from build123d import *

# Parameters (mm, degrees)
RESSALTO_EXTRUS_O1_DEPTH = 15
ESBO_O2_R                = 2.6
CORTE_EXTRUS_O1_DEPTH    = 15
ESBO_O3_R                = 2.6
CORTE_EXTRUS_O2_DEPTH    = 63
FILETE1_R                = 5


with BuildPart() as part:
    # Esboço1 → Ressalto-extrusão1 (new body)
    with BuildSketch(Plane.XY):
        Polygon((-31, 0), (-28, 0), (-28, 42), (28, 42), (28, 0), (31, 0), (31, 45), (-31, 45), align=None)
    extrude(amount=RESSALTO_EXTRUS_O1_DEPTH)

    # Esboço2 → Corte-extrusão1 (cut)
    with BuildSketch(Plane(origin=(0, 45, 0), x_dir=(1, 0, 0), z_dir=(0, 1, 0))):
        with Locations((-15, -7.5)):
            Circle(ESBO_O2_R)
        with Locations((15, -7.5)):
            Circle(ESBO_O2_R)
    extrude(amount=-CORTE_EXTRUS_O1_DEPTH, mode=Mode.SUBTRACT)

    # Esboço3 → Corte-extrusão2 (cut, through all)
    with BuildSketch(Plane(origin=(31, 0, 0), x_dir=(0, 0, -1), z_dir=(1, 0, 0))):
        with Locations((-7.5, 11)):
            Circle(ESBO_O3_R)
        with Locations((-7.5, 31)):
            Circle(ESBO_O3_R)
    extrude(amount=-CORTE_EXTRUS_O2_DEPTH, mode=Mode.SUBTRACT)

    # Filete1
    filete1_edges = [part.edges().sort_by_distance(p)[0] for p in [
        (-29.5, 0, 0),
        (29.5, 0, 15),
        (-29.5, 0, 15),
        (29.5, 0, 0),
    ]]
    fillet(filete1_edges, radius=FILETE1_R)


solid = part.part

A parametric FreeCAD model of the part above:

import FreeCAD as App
import Part
import Sketcher


def edges_at(feature, points):
    """Names of the edges that pass closest to the given points."""
    edges = feature.Shape.Edges
    near = lambda p: min(range(len(edges)), key=lambda i: edges[i].distToShape(Part.Vertex(*p))[0])
    return sorted({f"Edge{near(p) + 1}" for p in points})


def add_polygon(sketch, points):
    """Adds a closed chain of lines whose ends are joined by coincident constraints."""
    first, n = sketch.GeometryCount, len(points)
    for a, b in zip(points, points[1:] + points[:1]):
        sketch.addGeometry(Part.LineSegment(App.Vector(*a, 0), App.Vector(*b, 0)), False)
    for i in range(n):
        sketch.addConstraint(Sketcher.Constraint("Coincident", first + i, 2, first + (i + 1) % n, 1))

doc = App.newDocument("Part")
params = doc.addObject("Spreadsheet::Sheet", "Params")
for row, (alias, value) in enumerate([
    ("sketch1_width", "3 mm"),
    ("sketch1_width2", "56 mm"),
    ("sketch1_height", "42 mm"),
    ("sketch1_height2", "45 mm"),
    ("pad1_length", "15 mm"),
    ("sketch2_diameter", "5.2 mm"),
    ("pocket1_length", "15 mm"),
    ("sketch3_diameter", "5.2 mm"),
    ("fillet_radius", "5 mm"),
], start=1):
    params.set(f"A{row}", alias)
    params.set(f"B{row}", "=" + value)
    params.setAlias(f"B{row}", alias)

body = doc.addObject("PartDesign::Body", "Body")

# Sketch on XY plane
sketch1 = doc.addObject("Sketcher::SketchObject", "Sketch")
body.addObject(sketch1)
sketch1.AttachmentSupport = (doc.XY_Plane, [""])
sketch1.MapMode = "FlatFace"
add_polygon(sketch1, [(-31, 0), (-28, 0), (-28, 42), (28, 42), (28, 0), (31, 0), (31, 45), (-31, 45)])  # lines 0-7
sketch1.addConstraint([
    Sketcher.Constraint("Horizontal", 0),
    Sketcher.Constraint("Vertical", 1),
    Sketcher.Constraint("Horizontal", 2),
    Sketcher.Constraint("Vertical", 3),
    Sketcher.Constraint("Horizontal", 4),
    Sketcher.Constraint("Vertical", 5),
    Sketcher.Constraint("Horizontal", 6),
    Sketcher.Constraint("Vertical", 7),
    Sketcher.Constraint("Symmetric", 0, 2, 3, 2, -1, 1),
    Sketcher.Constraint("Symmetric", 4, 2, 7, 2, -2),
    Sketcher.Constraint("DistanceX", 0, 1, 0, 2, 3.0),
    Sketcher.Constraint("DistanceX", 2, 1, 2, 2, 56.0),
    Sketcher.Constraint("DistanceY", 1, 1, 1, 2, 42.0),
    Sketcher.Constraint("DistanceY", 5, 1, 5, 2, 45.0),
])
sketch1.setExpression("Constraints[18]", "Params.sketch1_width")
sketch1.setExpression("Constraints[19]", "Params.sketch1_width2")
sketch1.setExpression("Constraints[20]", "Params.sketch1_height")
sketch1.setExpression("Constraints[21]", "Params.sketch1_height2")
pad1 = doc.addObject("PartDesign::Pad", "Pad")
body.addObject(pad1)
pad1.Profile = sketch1
pad1.setExpression("Length", "Params.pad1_length")

# Sketch on XZ plane
sketch2 = doc.addObject("Sketcher::SketchObject", "Sketch001")
body.addObject(sketch2)
sketch2.AttachmentSupport = (doc.XZ_Plane, [""])
sketch2.MapMode = "FlatFace"
sketch2.AttachmentOffset = App.Placement(App.Vector(0, 0, -45), App.Rotation())
sketch2.addGeometry([
    Part.Circle(App.Vector(-15, 7.5, 0), App.Vector(0, 0, 1), 2.6),
    Part.Circle(App.Vector(15, 7.5, 0), App.Vector(0, 0, 1), 2.6),
], False)
sketch2.addConstraint([
    Sketcher.Constraint("Equal", 0, 1),
    Sketcher.Constraint("Symmetric", 0, 3, 1, 3, -2),
    Sketcher.Constraint("Diameter", 0, 5.2),
    Sketcher.Constraint("DistanceX", 0, 3, -1, 1, 15.0),
    Sketcher.Constraint("DistanceY", -1, 1, 0, 3, 7.5),
])
sketch2.setExpression("Constraints[2]", "Params.sketch2_diameter")
pocket1 = doc.addObject("PartDesign::Pocket", "Pocket")
body.addObject(pocket1)
pocket1.Profile = sketch2
pocket1.setExpression("Length", "Params.pocket1_length")
pocket1.Reversed = True

# Sketch on YZ plane
sketch3 = doc.addObject("Sketcher::SketchObject", "Sketch002")
body.addObject(sketch3)
sketch3.AttachmentSupport = (doc.YZ_Plane, [""])
sketch3.MapMode = "FlatFace"
sketch3.AttachmentOffset = App.Placement(App.Vector(0, 0, 31), App.Rotation())
sketch3.addGeometry([
    Part.Circle(App.Vector(11, 7.5, 0), App.Vector(0, 0, 1), 2.6),
    Part.Circle(App.Vector(31, 7.5, 0), App.Vector(0, 0, 1), 2.6),
], False)
sketch3.addConstraint([
    Sketcher.Constraint("Equal", 0, 1),
    Sketcher.Constraint("Horizontal", 0, 3, 1, 3),
    Sketcher.Constraint("Diameter", 0, 5.2),
    Sketcher.Constraint("DistanceX", -1, 1, 0, 3, 11.0),
    Sketcher.Constraint("DistanceX", -1, 1, 1, 3, 31.0),
    Sketcher.Constraint("DistanceY", -1, 1, 0, 3, 7.5),
])
sketch3.setExpression("Constraints[2]", "Params.sketch3_diameter")
pocket2 = doc.addObject("PartDesign::Pocket", "Pocket001")
body.addObject(pocket2)
pocket2.Profile = sketch3
pocket2.Type = "ThroughAll"
doc.recompute()

fillet = doc.addObject("PartDesign::Fillet", "Fillet")
body.addObject(fillet)
fillet.Base = (pocket2, edges_at(pocket2, [
    (-29.5, 0, 0),
    (29.5, 0, 15),
    (-29.5, 0, 15),
    (29.5, 0, 0),
]))
fillet.setExpression("Radius", "Params.fillet_radius")

doc.recompute()
